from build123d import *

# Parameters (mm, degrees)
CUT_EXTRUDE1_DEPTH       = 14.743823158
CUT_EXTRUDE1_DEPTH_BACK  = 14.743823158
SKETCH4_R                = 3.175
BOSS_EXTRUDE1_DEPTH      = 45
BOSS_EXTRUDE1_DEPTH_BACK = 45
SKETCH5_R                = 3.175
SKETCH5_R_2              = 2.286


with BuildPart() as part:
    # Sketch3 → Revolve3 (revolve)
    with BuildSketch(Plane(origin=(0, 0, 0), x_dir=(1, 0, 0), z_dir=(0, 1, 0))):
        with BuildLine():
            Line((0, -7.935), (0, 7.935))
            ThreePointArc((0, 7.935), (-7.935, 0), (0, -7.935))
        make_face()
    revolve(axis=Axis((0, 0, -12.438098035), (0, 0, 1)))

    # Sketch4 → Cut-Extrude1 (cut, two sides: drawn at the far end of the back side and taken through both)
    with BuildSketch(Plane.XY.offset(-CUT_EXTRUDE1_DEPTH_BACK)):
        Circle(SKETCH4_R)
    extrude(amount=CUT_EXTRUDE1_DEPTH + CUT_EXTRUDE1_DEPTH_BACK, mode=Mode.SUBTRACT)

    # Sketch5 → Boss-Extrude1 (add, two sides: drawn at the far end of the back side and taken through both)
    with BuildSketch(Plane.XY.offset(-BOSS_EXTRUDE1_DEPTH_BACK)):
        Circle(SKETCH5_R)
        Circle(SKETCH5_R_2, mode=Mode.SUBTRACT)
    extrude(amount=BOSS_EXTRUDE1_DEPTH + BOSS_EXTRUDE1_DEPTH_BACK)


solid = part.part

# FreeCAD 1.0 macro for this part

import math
import FreeCAD as App
import Part
import Sketcher

V = App.Vector
Q = App.Units.Quantity

doc = App.newDocument("Part")
body = doc.addObject("PartDesign::Body", "Body")

# Sketch on XZ plane
sketch1 = body.newObject("Sketcher::SketchObject", "Sketch")
sketch1.AttachmentSupport = (doc.getObject("XZ_Plane"), [""])
sketch1.MapMode = "FlatFace"
sketch1.addGeometry([
    Part.LineSegment(V(0, 7.935, 0), V(0, -7.935, 0)),
    Part.ArcOfCircle(Part.Circle(V(0, 0, 0), V(0, 0, 1), 7.935), math.radians(90), math.radians(270)),
], False)
sketch1.addConstraint([
    Sketcher.Constraint("Coincident", 0, 1, 1, 1),
    Sketcher.Constraint("Coincident", 1, 2, 0, 2),
    Sketcher.Constraint("Vertical", 0),
    Sketcher.Constraint("Coincident", 1, 3, -1, 1),
    Sketcher.Constraint("PointOnObject", 0, 1, -2),
    Sketcher.Constraint("Radius", 1, 7.935),
])
revolution = body.newObject("PartDesign::Revolution", "Revolution")
revolution.Profile = sketch1
revolution.ReferenceAxis = (sketch1, ["V_Axis"])
revolution.Angle = 360

# Sketch on XY plane
sketch2 = body.newObject("Sketcher::SketchObject", "Sketch001")
sketch2.AttachmentSupport = (doc.getObject("XY_Plane"), [""])
sketch2.MapMode = "FlatFace"
sketch2.addGeometry(Part.Circle(V(0, 0, 0), V(0, 0, 1), 3.175), False)
sketch2.addConstraint([
    Sketcher.Constraint("Coincident", 0, 3, -1, 1),
    Sketcher.Constraint("Diameter", 0, Q("0.25 in")),
])
pocket1 = body.newObject("PartDesign::Pocket", "Pocket")
pocket1.Profile = sketch2
pocket1.Type = "ThroughAll"
pocket1.Midplane = True

# Sketch on XY plane
sketch3 = body.newObject("Sketcher::SketchObject", "Sketch002")
sketch3.AttachmentSupport = (doc.getObject("XY_Plane"), [""])
sketch3.MapMode = "FlatFace"
sketch3.addGeometry([
    Part.Circle(V(0, 0, 0), V(0, 0, 1), 3.175),
    Part.Circle(V(0, 0, 0), V(0, 0, 1), 2.286),
], False)
sketch3.addConstraint([
    Sketcher.Constraint("Coincident", 0, 3, -1, 1),
    Sketcher.Constraint("Coincident", 1, 3, -1, 1),
    Sketcher.Constraint("Diameter", 0, Q("0.25 in")),
    Sketcher.Constraint("Diameter", 1, Q("0.18 in")),
])
pad1 = body.newObject("PartDesign::Pad", "Pad")
pad1.Profile = sketch3
pad1.Type = "TwoLengths"
pad1.Length = 45
pad1.Length2 = 45

doc.recompute()
